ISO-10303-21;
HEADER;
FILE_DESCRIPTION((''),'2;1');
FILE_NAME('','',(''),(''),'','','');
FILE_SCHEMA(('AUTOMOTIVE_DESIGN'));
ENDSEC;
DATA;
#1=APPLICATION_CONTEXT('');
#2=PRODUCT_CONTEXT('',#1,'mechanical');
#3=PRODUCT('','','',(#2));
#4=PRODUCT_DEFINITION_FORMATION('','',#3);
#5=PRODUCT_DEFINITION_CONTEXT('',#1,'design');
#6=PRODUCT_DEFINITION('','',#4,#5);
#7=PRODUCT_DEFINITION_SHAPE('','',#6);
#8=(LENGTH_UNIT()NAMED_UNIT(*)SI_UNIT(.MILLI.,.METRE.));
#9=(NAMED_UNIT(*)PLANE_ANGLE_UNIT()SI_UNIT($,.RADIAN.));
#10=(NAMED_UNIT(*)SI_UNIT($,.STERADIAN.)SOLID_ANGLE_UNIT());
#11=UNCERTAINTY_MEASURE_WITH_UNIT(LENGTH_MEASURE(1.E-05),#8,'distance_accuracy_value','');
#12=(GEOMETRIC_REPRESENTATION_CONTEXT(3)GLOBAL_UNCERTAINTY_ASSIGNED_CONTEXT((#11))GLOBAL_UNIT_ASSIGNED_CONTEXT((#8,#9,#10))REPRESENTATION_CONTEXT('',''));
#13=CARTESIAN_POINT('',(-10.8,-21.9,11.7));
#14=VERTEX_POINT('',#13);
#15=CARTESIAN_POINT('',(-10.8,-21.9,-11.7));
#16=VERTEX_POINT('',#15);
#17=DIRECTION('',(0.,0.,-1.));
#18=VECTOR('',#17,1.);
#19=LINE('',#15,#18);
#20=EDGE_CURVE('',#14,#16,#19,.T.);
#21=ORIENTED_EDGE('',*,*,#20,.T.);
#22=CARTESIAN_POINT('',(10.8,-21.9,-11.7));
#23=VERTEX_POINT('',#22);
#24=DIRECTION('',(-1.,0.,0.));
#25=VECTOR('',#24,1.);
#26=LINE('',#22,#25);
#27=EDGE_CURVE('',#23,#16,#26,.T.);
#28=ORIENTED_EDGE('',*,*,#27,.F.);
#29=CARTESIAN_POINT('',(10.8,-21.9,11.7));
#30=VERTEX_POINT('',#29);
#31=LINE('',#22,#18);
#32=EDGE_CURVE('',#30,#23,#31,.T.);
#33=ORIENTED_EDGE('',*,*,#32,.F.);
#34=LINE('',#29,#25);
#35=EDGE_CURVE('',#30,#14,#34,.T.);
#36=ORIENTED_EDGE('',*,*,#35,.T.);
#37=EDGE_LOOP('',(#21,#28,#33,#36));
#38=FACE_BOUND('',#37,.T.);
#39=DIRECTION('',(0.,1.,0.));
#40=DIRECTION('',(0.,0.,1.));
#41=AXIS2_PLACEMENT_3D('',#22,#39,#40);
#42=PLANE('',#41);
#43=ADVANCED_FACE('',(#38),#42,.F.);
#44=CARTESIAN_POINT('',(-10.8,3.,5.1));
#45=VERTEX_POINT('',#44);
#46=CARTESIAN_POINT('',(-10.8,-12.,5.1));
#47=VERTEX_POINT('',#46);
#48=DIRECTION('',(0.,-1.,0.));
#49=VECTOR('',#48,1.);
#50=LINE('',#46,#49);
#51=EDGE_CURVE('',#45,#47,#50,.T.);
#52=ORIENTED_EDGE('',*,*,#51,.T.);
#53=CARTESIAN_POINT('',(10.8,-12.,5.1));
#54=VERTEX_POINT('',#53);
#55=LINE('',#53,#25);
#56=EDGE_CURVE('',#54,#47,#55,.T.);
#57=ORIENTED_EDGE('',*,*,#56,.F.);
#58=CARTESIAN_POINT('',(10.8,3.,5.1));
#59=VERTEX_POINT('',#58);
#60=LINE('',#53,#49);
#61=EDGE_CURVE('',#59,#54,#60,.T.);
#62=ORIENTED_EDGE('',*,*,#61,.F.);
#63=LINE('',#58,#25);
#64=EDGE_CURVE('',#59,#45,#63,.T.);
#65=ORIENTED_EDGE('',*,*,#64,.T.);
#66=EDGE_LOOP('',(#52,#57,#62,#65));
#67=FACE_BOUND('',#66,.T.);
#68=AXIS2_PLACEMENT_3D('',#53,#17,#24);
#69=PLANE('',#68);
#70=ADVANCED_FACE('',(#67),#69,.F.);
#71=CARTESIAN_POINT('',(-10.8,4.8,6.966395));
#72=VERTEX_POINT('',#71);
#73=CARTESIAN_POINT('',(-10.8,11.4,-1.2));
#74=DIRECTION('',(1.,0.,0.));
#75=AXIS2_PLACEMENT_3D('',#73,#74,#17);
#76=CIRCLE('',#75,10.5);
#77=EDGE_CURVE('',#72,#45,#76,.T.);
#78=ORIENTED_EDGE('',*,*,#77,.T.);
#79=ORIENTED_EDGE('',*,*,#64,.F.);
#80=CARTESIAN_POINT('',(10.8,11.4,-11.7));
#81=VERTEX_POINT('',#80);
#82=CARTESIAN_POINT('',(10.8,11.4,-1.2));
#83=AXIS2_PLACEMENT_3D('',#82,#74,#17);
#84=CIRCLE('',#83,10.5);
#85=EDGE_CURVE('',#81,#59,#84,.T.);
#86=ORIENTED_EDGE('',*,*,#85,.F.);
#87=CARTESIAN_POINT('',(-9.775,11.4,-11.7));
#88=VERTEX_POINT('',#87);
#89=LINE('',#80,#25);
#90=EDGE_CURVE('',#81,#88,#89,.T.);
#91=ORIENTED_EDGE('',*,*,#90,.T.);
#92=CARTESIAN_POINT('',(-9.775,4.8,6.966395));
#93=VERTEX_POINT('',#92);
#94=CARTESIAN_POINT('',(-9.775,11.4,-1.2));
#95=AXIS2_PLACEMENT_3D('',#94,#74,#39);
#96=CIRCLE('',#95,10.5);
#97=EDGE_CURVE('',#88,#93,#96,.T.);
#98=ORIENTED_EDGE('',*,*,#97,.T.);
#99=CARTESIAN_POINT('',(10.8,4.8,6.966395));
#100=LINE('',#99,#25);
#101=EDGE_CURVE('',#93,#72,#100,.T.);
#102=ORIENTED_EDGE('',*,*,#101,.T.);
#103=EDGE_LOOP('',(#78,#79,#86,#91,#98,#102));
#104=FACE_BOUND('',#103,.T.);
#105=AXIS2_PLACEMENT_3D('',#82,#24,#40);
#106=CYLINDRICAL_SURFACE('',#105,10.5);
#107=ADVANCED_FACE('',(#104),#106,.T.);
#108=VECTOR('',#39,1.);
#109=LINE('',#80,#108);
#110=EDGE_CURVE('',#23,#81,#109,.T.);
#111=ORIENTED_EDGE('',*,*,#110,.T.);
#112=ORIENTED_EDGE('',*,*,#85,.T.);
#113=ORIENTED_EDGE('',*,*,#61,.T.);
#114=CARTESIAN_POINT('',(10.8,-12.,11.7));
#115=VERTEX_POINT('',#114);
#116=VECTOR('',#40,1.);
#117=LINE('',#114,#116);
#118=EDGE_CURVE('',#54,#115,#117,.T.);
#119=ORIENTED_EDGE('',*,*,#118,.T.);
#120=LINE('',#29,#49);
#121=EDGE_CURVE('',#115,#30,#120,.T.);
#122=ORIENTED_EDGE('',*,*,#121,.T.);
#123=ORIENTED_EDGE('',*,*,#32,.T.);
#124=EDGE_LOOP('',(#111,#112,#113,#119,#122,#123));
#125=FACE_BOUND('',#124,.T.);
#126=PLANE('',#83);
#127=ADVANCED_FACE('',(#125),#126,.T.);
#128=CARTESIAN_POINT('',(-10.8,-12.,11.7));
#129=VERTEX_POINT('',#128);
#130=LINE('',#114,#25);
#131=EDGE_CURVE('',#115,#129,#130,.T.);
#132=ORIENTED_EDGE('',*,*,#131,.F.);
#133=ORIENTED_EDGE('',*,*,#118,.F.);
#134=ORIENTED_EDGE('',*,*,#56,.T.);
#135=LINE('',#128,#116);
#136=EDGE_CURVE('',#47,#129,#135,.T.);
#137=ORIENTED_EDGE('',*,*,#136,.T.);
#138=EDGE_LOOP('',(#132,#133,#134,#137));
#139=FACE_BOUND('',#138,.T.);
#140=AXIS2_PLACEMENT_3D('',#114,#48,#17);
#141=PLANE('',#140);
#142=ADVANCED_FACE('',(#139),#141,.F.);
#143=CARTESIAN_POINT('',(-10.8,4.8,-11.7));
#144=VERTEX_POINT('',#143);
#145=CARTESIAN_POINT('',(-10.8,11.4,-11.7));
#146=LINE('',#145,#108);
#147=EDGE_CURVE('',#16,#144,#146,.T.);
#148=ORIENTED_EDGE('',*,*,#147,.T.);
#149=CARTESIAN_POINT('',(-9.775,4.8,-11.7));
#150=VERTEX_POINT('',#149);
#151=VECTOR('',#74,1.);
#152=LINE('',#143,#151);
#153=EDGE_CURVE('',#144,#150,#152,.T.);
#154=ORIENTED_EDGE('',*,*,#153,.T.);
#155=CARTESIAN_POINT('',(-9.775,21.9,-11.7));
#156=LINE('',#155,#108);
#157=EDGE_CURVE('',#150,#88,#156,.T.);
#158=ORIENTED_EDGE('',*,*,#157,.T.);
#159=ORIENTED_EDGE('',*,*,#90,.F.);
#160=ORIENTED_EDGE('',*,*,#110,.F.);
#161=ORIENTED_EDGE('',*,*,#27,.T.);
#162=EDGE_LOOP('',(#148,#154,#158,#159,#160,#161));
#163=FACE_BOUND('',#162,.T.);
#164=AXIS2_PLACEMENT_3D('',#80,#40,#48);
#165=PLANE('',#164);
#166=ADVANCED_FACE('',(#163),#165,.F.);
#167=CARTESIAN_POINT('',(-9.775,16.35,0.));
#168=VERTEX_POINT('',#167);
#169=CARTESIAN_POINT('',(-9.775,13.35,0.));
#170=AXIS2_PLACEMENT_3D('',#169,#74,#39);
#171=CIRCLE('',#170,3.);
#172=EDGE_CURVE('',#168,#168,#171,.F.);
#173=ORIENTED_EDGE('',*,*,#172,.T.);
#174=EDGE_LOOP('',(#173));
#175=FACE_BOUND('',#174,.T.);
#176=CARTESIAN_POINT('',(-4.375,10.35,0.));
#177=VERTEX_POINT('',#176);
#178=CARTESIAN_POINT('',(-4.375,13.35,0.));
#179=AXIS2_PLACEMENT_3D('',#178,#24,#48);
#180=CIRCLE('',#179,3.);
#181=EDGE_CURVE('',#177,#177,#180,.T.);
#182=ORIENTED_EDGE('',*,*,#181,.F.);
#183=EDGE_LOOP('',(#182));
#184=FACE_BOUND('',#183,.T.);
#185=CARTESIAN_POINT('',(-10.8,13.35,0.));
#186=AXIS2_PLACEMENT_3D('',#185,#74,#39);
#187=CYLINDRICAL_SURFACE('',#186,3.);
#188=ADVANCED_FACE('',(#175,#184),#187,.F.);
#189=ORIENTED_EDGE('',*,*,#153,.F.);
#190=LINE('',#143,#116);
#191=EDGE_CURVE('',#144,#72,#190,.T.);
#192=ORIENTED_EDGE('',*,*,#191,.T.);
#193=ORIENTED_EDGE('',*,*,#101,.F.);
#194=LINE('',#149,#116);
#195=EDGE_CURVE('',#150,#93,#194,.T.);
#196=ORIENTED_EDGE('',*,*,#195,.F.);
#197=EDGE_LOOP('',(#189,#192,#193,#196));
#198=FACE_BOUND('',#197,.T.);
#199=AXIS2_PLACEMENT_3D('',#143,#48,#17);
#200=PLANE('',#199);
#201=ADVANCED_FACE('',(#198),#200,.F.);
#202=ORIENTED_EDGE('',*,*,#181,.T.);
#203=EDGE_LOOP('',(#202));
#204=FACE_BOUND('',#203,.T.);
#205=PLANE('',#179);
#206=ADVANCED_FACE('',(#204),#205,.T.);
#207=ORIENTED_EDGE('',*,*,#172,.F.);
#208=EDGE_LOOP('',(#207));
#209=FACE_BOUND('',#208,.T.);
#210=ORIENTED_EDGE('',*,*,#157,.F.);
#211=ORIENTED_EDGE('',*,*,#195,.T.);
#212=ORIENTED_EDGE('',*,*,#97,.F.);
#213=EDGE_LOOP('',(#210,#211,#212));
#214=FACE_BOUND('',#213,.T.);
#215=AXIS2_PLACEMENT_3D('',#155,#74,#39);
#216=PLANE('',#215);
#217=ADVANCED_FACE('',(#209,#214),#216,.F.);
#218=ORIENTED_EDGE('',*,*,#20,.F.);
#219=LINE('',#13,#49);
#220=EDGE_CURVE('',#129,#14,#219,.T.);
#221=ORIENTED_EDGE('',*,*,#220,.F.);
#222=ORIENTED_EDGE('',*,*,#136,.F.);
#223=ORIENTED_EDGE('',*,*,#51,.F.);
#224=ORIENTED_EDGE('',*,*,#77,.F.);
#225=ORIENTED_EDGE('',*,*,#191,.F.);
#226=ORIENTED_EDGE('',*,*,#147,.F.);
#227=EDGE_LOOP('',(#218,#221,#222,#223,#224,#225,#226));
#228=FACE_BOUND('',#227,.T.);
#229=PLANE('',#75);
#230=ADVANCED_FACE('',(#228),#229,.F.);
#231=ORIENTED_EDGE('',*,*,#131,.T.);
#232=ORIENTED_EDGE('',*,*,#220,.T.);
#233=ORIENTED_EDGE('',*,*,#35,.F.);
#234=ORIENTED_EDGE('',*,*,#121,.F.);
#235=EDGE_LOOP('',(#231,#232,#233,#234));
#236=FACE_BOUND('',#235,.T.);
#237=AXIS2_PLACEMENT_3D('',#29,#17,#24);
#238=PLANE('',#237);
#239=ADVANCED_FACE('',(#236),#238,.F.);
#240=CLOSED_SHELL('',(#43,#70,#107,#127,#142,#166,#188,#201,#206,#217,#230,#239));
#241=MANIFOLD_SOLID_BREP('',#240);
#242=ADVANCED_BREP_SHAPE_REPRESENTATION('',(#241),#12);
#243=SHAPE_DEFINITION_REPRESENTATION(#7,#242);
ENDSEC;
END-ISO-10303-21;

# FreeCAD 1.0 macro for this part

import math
import FreeCAD as App
import Part
import Sketcher
from FreeCAD import Vector

doc = App.newDocument("Part")
body = doc.addObject("PartDesign::Body", "Body")

sketch1 = body.newObject("Sketcher::SketchObject", "Sketch")
sketch1.AttachmentSupport = (doc.getObject("YZ_Plane"), [""])
sketch1.MapMode = "FlatFace"
sketch1.addGeometry([
    Part.LineSegment(Vector(-22, -12, 0), Vector(11, -12, 0)),
    Part.ArcOfCircle(Part.Circle(Vector(11, -1, 0), Vector(0, 0, 1), 10), math.radians(-90), math.radians(143)),
    Part.LineSegment(Vector(3, 5, 0), Vector(-12, 5, 0)),
    Part.LineSegment(Vector(-12, 5, 0), Vector(-12, 12, 0)),
    Part.LineSegment(Vector(-12, 12, 0), Vector(-22, 12, 0)),
    Part.LineSegment(Vector(-22, 12, 0), Vector(-22, -12, 0)),
], False)
sketch1.addConstraint([
    Sketcher.Constraint("Tangent", 0, 2, 1, 1),
    Sketcher.Constraint("Coincident", 1, 2, 2, 1),
    Sketcher.Constraint("Coincident", 2, 2, 3, 1),
    Sketcher.Constraint("Coincident", 3, 2, 4, 1),
    Sketcher.Constraint("Coincident", 4, 2, 5, 1),
    Sketcher.Constraint("Coincident", 5, 2, 0, 1),
    Sketcher.Constraint("Horizontal", 0),
    Sketcher.Constraint("Horizontal", 2),
    Sketcher.Constraint("Vertical", 3),
    Sketcher.Constraint("Horizontal", 4),
    Sketcher.Constraint("Vertical", 5),
    Sketcher.Constraint("Radius", 1, 10.5),
    Sketcher.Constraint("DistanceX", 2, 2, 2, 1, 15.0),
    Sketcher.Constraint("DistanceX", 0, 1, 0, 2, 33.3),
    Sketcher.Constraint("DistanceX", 4, 2, 4, 1, 9.9),
    Sketcher.Constraint("DistanceY", 3, 1, 3, 2, 6.6),
    Sketcher.Constraint("DistanceX", -1, 1, 1, 2, 3.0),
    Sketcher.Constraint("DistanceY", 1, 3, -1, 1, 1.2),
])
pad1 = body.newObject("PartDesign::Pad", "Pad")
pad1.Profile = sketch1
pad1.Length = 21.6
pad1.Midplane = True

sketch2 = body.newObject("Sketcher::SketchObject", "Sketch001")
sketch2.AttachmentSupport = (doc.getObject("XY_Plane"), [""])
sketch2.MapMode = "FlatFace"
sketch2.addGeometry([
    Part.LineSegment(Vector(-10.8, 21.9, 0), Vector(-10.8, 4.8, 0)),
    Part.LineSegment(Vector(-10.8, 4.8, 0), Vector(-9.8, 4.8, 0)),
    Part.LineSegment(Vector(-9.8, 4.8, 0), Vector(-9.8, 21.9, 0)),
    Part.LineSegment(Vector(-9.8, 21.9, 0), Vector(-10.8, 21.9, 0)),
], False)
sketch2.addConstraint([
    Sketcher.Constraint("Coincident", 0, 2, 1, 1),
    Sketcher.Constraint("Coincident", 1, 2, 2, 1),
    Sketcher.Constraint("Coincident", 2, 2, 3, 1),
    Sketcher.Constraint("Coincident", 3, 2, 0, 1),
    Sketcher.Constraint("Vertical", 0),
    Sketcher.Constraint("Horizontal", 1),
    Sketcher.Constraint("Vertical", 2),
    Sketcher.Constraint("Horizontal", 3),
    Sketcher.Constraint("DistanceY", 0, 2, 0, 1, 17.1),
    Sketcher.Constraint("DistanceX", 0, 2, -1, 1, 10.8),
    Sketcher.Constraint("DistanceY", -1, 1, 0, 2, 4.8),
    Sketcher.Constraint("DistanceX", 1, 1, 1, 2, 1.025),
])
pocket1 = body.newObject("PartDesign::Pocket", "Pocket")
pocket1.Profile = sketch2
pocket1.Type = "ThroughAll"
pocket1.Midplane = True

sketch3 = body.newObject("Sketcher::SketchObject", "Sketch002")
sketch3.AttachmentSupport = (doc.getObject("YZ_Plane"), [""])
sketch3.MapMode = "FlatFace"
sketch3.AttachmentOffset = App.Placement(Vector(0, 0, -9.775), App.Rotation())
sketch3.addGeometry(Part.Circle(Vector(13.3, 0, 0), Vector(0, 0, 1), 3), False)
sketch3.addConstraint([
    Sketcher.Constraint("PointOnObject", 0, 3, -1),
    Sketcher.Constraint("Diameter", 0, 6.0),
    Sketcher.Constraint("DistanceX", -1, 1, 0, 3, 13.35),
])
pocket2 = body.newObject("PartDesign::Pocket", "Pocket001")
pocket2.Profile = sketch3
pocket2.Type = "TwoLengths"
pocket2.Length = 33.246405
pocket2.Length2 = 5.4

doc.recompute()
